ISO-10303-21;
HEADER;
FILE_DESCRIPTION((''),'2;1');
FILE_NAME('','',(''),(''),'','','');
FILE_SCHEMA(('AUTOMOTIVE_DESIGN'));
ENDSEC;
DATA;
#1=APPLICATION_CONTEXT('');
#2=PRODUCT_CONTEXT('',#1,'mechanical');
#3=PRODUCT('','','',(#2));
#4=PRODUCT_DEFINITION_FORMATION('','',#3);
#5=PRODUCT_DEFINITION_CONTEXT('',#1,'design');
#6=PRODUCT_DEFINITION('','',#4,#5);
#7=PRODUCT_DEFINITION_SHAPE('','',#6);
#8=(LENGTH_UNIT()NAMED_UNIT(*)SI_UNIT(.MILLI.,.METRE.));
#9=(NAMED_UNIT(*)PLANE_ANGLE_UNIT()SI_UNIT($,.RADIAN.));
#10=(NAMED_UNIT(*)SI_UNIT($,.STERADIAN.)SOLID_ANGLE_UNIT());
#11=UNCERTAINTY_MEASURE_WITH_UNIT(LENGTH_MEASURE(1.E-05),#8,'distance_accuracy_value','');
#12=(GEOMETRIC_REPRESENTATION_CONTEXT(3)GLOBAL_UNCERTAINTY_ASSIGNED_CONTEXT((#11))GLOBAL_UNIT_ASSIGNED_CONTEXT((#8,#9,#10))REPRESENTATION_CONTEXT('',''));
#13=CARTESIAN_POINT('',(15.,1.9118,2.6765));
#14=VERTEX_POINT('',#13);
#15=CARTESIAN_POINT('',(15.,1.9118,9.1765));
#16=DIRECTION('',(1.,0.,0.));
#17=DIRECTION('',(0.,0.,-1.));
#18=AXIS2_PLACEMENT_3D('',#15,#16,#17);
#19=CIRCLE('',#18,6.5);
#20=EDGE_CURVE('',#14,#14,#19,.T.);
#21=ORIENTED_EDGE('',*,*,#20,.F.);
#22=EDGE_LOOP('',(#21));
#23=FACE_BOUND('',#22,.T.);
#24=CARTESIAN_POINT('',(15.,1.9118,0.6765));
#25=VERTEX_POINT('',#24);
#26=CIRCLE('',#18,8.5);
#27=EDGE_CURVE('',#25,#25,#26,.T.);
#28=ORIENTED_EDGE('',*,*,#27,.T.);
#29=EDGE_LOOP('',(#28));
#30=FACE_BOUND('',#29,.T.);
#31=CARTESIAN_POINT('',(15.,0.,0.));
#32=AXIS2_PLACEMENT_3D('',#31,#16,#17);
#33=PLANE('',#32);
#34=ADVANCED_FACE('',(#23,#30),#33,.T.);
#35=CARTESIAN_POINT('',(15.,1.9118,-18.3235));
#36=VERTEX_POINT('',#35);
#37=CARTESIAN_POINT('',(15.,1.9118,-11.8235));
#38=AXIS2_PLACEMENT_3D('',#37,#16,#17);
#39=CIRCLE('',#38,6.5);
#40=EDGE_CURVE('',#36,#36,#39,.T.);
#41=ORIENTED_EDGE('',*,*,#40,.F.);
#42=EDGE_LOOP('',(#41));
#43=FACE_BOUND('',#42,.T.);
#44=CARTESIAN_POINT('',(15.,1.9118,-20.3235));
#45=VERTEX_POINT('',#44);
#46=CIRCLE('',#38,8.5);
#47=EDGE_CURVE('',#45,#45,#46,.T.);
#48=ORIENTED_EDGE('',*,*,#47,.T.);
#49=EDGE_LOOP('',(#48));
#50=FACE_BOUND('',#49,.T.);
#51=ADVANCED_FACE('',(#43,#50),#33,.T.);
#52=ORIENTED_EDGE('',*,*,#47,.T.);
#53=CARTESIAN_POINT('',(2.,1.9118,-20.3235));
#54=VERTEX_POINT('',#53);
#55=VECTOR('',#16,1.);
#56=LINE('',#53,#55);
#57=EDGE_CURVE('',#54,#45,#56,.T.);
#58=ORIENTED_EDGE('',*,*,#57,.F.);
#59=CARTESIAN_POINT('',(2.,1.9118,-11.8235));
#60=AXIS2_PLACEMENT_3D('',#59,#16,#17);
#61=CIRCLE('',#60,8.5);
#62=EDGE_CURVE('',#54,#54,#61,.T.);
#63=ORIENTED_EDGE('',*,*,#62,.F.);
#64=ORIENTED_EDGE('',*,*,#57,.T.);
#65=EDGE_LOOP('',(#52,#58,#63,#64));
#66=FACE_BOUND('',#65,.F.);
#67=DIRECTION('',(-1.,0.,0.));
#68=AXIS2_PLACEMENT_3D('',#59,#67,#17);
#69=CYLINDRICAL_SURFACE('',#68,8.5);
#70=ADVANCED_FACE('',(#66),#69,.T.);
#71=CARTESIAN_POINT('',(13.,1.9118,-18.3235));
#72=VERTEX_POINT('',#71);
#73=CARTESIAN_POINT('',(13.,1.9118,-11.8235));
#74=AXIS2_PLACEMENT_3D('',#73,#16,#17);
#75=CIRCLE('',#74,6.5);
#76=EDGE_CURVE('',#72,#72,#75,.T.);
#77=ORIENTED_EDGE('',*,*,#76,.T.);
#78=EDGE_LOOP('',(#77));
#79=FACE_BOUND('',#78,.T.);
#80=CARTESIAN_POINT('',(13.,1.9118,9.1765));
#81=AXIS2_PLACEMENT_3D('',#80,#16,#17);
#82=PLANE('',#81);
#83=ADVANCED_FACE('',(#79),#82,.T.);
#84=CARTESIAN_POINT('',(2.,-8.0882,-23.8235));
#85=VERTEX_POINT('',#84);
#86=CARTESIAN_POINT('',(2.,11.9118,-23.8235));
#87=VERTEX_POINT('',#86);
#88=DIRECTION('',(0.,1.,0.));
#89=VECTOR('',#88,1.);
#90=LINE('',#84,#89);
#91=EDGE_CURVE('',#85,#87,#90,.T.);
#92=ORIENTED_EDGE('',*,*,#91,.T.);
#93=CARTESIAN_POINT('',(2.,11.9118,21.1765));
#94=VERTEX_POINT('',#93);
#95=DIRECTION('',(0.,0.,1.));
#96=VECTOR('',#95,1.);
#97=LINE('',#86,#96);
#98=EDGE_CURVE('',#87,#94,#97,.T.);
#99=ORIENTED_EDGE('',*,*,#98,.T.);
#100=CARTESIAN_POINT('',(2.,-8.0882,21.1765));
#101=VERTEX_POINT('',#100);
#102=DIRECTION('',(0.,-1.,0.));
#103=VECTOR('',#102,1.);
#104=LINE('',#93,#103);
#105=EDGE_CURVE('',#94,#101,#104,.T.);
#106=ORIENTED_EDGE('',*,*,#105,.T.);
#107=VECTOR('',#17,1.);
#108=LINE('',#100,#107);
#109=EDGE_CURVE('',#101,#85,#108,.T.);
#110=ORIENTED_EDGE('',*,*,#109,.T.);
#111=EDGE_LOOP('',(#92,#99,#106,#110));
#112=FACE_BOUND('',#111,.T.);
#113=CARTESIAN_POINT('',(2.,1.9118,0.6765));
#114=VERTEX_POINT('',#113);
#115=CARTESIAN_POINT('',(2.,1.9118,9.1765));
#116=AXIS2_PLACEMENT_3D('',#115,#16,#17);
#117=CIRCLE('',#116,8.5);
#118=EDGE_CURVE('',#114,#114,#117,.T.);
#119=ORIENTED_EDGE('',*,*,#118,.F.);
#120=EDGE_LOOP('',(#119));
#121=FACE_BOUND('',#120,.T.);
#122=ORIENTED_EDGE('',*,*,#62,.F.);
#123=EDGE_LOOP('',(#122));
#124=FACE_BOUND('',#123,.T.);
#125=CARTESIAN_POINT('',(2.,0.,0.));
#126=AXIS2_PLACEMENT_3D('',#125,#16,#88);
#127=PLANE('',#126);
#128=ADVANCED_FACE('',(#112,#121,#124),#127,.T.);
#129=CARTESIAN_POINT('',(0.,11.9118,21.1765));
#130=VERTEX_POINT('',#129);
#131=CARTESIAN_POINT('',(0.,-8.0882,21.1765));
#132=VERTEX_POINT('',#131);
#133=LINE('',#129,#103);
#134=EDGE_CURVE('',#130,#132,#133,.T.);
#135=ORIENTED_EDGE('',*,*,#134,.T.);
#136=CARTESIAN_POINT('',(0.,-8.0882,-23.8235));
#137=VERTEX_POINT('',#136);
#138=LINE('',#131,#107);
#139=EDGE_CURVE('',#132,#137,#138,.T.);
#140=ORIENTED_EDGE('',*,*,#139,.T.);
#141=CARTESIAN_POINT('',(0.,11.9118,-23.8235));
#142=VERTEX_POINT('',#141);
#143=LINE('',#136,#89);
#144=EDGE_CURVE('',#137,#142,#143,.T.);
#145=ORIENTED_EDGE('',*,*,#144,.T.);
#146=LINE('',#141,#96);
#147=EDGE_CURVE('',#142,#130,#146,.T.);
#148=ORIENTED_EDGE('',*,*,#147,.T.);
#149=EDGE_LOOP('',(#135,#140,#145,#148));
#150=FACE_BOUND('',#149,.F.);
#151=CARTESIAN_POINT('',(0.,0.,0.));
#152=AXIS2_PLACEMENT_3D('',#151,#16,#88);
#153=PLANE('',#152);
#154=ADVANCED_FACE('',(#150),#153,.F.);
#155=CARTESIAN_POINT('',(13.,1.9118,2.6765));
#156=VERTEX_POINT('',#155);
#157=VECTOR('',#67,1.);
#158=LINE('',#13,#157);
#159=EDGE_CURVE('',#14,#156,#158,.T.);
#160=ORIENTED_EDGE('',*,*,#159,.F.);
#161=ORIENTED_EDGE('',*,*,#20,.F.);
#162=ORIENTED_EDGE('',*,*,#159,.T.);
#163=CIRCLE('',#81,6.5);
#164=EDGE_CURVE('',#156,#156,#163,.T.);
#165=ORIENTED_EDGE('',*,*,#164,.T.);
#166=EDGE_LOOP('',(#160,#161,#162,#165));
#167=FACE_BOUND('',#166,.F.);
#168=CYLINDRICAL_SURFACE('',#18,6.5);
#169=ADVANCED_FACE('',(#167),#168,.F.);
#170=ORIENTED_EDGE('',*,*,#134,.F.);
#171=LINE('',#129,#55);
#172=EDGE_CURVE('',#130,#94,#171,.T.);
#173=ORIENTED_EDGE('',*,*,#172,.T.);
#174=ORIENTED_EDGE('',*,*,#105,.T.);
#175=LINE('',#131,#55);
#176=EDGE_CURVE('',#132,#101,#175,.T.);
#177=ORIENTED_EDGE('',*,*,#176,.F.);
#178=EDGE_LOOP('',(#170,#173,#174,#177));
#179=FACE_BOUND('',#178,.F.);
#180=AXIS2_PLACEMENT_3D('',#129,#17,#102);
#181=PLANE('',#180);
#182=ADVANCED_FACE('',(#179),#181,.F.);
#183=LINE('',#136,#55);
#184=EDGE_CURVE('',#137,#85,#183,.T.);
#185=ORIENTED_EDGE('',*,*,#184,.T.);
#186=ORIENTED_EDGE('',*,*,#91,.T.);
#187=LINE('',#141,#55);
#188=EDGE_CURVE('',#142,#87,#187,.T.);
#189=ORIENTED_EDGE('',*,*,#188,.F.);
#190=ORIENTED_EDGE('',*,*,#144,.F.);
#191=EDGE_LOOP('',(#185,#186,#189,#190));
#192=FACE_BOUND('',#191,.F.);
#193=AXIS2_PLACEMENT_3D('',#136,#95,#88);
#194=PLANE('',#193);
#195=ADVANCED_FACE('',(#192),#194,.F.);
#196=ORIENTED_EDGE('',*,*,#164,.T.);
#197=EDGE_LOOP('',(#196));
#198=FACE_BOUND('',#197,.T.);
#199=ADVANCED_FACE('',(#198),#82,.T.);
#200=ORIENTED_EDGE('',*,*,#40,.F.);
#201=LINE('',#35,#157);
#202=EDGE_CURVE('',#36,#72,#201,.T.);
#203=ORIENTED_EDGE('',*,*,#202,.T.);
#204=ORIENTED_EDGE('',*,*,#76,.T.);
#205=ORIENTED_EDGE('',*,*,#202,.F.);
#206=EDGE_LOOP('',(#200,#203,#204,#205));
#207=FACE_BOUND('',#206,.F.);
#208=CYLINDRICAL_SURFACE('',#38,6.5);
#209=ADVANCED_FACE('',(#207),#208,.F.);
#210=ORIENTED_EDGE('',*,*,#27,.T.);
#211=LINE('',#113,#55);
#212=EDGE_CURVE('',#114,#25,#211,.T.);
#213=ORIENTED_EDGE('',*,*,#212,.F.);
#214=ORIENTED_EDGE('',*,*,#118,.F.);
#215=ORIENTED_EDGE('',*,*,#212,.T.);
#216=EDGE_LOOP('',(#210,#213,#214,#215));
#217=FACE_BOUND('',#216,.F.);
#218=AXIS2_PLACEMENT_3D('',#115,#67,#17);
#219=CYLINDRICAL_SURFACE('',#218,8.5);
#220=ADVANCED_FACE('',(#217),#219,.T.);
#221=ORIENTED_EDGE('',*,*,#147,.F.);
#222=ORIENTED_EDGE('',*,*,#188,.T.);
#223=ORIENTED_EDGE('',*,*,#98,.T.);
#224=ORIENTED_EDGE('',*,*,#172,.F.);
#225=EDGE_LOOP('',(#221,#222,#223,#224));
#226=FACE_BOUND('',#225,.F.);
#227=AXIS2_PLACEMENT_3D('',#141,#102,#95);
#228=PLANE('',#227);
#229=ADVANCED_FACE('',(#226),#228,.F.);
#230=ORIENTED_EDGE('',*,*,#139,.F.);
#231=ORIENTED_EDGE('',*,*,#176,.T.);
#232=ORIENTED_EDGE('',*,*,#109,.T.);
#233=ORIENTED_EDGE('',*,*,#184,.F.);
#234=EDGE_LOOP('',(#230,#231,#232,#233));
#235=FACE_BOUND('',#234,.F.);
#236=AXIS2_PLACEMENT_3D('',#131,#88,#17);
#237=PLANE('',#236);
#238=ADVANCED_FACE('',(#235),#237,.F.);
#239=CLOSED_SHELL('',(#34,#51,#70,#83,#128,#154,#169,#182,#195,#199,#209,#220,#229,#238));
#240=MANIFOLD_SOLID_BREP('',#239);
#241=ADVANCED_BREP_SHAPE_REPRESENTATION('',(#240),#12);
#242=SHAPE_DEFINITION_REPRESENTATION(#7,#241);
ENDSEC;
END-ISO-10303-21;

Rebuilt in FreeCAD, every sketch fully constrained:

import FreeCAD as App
import Part
import Sketcher

V = App.Vector
Q = App.Units.Quantity


def add_polygon(sketch, points):
    """Adds a closed chain of lines whose ends are joined by coincident constraints."""
    first, n = sketch.GeometryCount, len(points)
    for a, b in zip(points, points[1:] + points[:1]):
        sketch.addGeometry(Part.LineSegment(App.Vector(*a, 0), App.Vector(*b, 0)), False)
    for i in range(n):
        sketch.addConstraint(Sketcher.Constraint("Coincident", first + i, 2, first + (i + 1) % n, 1))

doc = App.newDocument("Part")
params = doc.addObject("Spreadsheet::Sheet", "Params")
for row, (alias, value) in enumerate([
    ("sketch1_width", "20 mm"),
    ("sketch1_height", "45 mm"),
    ("pad1_length", "2 mm"),
    ("sketch2_diameter", "17 mm"),
    ("pad2_length", "13 mm"),
    ("sketch3_diameter", "13 mm"),
    ("pocket1_length", "2 mm"),
], start=1):
    params.set(f"A{row}", alias)
    params.set(f"B{row}", "=" + value)
    params.setAlias(f"B{row}", alias)

body = doc.addObject("PartDesign::Body", "Body")

sketch1 = doc.addObject("Sketcher::SketchObject", "Sketch")
body.addObject(sketch1)
sketch1.AttachmentSupport = (doc.YZ_Plane, [""])
sketch1.MapMode = "FlatFace"
add_polygon(sketch1, [(12, -24), (12, 21), (-8, 21), (-8, -24)])
sketch1.addConstraint([
    Sketcher.Constraint("Vertical", 0),
    Sketcher.Constraint("Horizontal", 1),
    Sketcher.Constraint("Vertical", 2),
    Sketcher.Constraint("Horizontal", 3),
    Sketcher.Constraint("DistanceX", 1, 2, 1, 1, Q("20 mm")),
    Sketcher.Constraint("DistanceY", 0, 1, 0, 2, Q("45 mm")),
    Sketcher.Constraint("DistanceX", -1, 1, 0, 2, Q("11.9118 mm")),
    Sketcher.Constraint("DistanceY", -1, 1, 0, 2, Q("21.1765 mm")),
])
sketch1.setExpression("Constraints[8]", "Params.sketch1_width")
sketch1.setExpression("Constraints[9]", "Params.sketch1_height")
pad1 = doc.addObject("PartDesign::Pad", "Pad")
body.addObject(pad1)
pad1.Profile = sketch1
pad1.setExpression("Length", "Params.pad1_length")

sketch2 = doc.addObject("Sketcher::SketchObject", "Sketch001")
body.addObject(sketch2)
sketch2.AttachmentSupport = (doc.YZ_Plane, [""])
sketch2.MapMode = "FlatFace"
sketch2.AttachmentOffset = App.Placement(V(0, 0, 2), App.Rotation())
sketch2.addGeometry([
    Part.Circle(V(2, 9, 0), V(0, 0, 1), 8),
    Part.Circle(V(2, -12, 0), V(0, 0, 1), 8),
], False)
sketch2.addConstraint([
    Sketcher.Constraint("Equal", 0, 1),
    Sketcher.Constraint("Vertical", 0, 3, 1, 3),
    Sketcher.Constraint("Diameter", 0, Q("17 mm")),
    Sketcher.Constraint("DistanceY", 1, 3, 0, 3, Q("21 mm")),
    Sketcher.Constraint("DistanceX", -1, 1, 0, 3, Q("1.9118 mm")),
    Sketcher.Constraint("DistanceY", -1, 1, 0, 3, Q("9.1765 mm")),
])
sketch2.setExpression("Constraints[2]", "Params.sketch2_diameter")
pad2 = doc.addObject("PartDesign::Pad", "Pad001")
body.addObject(pad2)
pad2.Profile = sketch2
pad2.setExpression("Length", "Params.pad2_length")

sketch3 = doc.addObject("Sketcher::SketchObject", "Sketch002")
body.addObject(sketch3)
sketch3.AttachmentSupport = (doc.YZ_Plane, [""])
sketch3.MapMode = "FlatFace"
sketch3.AttachmentOffset = App.Placement(V(0, 0, 15), App.Rotation())
sketch3.addGeometry([
    Part.Circle(V(2, 9, 0), V(0, 0, 1), 6),
    Part.Circle(V(2, -12, 0), V(0, 0, 1), 6),
], False)
sketch3.addConstraint([
    Sketcher.Constraint("Equal", 0, 1),
    Sketcher.Constraint("Vertical", 0, 3, 1, 3),
    Sketcher.Constraint("Diameter", 0, Q("13 mm")),
    Sketcher.Constraint("DistanceY", 1, 3, 0, 3, Q("21 mm")),
    Sketcher.Constraint("DistanceX", -1, 1, 0, 3, Q("1.9118 mm")),
    Sketcher.Constraint("DistanceY", -1, 1, 0, 3, Q("9.1765 mm")),
])
sketch3.setExpression("Constraints[2]", "Params.sketch3_diameter")
pocket1 = doc.addObject("PartDesign::Pocket", "Pocket")
body.addObject(pocket1)
pocket1.Profile = sketch3
pocket1.setExpression("Length", "Params.pocket1_length")

doc.recompute()
